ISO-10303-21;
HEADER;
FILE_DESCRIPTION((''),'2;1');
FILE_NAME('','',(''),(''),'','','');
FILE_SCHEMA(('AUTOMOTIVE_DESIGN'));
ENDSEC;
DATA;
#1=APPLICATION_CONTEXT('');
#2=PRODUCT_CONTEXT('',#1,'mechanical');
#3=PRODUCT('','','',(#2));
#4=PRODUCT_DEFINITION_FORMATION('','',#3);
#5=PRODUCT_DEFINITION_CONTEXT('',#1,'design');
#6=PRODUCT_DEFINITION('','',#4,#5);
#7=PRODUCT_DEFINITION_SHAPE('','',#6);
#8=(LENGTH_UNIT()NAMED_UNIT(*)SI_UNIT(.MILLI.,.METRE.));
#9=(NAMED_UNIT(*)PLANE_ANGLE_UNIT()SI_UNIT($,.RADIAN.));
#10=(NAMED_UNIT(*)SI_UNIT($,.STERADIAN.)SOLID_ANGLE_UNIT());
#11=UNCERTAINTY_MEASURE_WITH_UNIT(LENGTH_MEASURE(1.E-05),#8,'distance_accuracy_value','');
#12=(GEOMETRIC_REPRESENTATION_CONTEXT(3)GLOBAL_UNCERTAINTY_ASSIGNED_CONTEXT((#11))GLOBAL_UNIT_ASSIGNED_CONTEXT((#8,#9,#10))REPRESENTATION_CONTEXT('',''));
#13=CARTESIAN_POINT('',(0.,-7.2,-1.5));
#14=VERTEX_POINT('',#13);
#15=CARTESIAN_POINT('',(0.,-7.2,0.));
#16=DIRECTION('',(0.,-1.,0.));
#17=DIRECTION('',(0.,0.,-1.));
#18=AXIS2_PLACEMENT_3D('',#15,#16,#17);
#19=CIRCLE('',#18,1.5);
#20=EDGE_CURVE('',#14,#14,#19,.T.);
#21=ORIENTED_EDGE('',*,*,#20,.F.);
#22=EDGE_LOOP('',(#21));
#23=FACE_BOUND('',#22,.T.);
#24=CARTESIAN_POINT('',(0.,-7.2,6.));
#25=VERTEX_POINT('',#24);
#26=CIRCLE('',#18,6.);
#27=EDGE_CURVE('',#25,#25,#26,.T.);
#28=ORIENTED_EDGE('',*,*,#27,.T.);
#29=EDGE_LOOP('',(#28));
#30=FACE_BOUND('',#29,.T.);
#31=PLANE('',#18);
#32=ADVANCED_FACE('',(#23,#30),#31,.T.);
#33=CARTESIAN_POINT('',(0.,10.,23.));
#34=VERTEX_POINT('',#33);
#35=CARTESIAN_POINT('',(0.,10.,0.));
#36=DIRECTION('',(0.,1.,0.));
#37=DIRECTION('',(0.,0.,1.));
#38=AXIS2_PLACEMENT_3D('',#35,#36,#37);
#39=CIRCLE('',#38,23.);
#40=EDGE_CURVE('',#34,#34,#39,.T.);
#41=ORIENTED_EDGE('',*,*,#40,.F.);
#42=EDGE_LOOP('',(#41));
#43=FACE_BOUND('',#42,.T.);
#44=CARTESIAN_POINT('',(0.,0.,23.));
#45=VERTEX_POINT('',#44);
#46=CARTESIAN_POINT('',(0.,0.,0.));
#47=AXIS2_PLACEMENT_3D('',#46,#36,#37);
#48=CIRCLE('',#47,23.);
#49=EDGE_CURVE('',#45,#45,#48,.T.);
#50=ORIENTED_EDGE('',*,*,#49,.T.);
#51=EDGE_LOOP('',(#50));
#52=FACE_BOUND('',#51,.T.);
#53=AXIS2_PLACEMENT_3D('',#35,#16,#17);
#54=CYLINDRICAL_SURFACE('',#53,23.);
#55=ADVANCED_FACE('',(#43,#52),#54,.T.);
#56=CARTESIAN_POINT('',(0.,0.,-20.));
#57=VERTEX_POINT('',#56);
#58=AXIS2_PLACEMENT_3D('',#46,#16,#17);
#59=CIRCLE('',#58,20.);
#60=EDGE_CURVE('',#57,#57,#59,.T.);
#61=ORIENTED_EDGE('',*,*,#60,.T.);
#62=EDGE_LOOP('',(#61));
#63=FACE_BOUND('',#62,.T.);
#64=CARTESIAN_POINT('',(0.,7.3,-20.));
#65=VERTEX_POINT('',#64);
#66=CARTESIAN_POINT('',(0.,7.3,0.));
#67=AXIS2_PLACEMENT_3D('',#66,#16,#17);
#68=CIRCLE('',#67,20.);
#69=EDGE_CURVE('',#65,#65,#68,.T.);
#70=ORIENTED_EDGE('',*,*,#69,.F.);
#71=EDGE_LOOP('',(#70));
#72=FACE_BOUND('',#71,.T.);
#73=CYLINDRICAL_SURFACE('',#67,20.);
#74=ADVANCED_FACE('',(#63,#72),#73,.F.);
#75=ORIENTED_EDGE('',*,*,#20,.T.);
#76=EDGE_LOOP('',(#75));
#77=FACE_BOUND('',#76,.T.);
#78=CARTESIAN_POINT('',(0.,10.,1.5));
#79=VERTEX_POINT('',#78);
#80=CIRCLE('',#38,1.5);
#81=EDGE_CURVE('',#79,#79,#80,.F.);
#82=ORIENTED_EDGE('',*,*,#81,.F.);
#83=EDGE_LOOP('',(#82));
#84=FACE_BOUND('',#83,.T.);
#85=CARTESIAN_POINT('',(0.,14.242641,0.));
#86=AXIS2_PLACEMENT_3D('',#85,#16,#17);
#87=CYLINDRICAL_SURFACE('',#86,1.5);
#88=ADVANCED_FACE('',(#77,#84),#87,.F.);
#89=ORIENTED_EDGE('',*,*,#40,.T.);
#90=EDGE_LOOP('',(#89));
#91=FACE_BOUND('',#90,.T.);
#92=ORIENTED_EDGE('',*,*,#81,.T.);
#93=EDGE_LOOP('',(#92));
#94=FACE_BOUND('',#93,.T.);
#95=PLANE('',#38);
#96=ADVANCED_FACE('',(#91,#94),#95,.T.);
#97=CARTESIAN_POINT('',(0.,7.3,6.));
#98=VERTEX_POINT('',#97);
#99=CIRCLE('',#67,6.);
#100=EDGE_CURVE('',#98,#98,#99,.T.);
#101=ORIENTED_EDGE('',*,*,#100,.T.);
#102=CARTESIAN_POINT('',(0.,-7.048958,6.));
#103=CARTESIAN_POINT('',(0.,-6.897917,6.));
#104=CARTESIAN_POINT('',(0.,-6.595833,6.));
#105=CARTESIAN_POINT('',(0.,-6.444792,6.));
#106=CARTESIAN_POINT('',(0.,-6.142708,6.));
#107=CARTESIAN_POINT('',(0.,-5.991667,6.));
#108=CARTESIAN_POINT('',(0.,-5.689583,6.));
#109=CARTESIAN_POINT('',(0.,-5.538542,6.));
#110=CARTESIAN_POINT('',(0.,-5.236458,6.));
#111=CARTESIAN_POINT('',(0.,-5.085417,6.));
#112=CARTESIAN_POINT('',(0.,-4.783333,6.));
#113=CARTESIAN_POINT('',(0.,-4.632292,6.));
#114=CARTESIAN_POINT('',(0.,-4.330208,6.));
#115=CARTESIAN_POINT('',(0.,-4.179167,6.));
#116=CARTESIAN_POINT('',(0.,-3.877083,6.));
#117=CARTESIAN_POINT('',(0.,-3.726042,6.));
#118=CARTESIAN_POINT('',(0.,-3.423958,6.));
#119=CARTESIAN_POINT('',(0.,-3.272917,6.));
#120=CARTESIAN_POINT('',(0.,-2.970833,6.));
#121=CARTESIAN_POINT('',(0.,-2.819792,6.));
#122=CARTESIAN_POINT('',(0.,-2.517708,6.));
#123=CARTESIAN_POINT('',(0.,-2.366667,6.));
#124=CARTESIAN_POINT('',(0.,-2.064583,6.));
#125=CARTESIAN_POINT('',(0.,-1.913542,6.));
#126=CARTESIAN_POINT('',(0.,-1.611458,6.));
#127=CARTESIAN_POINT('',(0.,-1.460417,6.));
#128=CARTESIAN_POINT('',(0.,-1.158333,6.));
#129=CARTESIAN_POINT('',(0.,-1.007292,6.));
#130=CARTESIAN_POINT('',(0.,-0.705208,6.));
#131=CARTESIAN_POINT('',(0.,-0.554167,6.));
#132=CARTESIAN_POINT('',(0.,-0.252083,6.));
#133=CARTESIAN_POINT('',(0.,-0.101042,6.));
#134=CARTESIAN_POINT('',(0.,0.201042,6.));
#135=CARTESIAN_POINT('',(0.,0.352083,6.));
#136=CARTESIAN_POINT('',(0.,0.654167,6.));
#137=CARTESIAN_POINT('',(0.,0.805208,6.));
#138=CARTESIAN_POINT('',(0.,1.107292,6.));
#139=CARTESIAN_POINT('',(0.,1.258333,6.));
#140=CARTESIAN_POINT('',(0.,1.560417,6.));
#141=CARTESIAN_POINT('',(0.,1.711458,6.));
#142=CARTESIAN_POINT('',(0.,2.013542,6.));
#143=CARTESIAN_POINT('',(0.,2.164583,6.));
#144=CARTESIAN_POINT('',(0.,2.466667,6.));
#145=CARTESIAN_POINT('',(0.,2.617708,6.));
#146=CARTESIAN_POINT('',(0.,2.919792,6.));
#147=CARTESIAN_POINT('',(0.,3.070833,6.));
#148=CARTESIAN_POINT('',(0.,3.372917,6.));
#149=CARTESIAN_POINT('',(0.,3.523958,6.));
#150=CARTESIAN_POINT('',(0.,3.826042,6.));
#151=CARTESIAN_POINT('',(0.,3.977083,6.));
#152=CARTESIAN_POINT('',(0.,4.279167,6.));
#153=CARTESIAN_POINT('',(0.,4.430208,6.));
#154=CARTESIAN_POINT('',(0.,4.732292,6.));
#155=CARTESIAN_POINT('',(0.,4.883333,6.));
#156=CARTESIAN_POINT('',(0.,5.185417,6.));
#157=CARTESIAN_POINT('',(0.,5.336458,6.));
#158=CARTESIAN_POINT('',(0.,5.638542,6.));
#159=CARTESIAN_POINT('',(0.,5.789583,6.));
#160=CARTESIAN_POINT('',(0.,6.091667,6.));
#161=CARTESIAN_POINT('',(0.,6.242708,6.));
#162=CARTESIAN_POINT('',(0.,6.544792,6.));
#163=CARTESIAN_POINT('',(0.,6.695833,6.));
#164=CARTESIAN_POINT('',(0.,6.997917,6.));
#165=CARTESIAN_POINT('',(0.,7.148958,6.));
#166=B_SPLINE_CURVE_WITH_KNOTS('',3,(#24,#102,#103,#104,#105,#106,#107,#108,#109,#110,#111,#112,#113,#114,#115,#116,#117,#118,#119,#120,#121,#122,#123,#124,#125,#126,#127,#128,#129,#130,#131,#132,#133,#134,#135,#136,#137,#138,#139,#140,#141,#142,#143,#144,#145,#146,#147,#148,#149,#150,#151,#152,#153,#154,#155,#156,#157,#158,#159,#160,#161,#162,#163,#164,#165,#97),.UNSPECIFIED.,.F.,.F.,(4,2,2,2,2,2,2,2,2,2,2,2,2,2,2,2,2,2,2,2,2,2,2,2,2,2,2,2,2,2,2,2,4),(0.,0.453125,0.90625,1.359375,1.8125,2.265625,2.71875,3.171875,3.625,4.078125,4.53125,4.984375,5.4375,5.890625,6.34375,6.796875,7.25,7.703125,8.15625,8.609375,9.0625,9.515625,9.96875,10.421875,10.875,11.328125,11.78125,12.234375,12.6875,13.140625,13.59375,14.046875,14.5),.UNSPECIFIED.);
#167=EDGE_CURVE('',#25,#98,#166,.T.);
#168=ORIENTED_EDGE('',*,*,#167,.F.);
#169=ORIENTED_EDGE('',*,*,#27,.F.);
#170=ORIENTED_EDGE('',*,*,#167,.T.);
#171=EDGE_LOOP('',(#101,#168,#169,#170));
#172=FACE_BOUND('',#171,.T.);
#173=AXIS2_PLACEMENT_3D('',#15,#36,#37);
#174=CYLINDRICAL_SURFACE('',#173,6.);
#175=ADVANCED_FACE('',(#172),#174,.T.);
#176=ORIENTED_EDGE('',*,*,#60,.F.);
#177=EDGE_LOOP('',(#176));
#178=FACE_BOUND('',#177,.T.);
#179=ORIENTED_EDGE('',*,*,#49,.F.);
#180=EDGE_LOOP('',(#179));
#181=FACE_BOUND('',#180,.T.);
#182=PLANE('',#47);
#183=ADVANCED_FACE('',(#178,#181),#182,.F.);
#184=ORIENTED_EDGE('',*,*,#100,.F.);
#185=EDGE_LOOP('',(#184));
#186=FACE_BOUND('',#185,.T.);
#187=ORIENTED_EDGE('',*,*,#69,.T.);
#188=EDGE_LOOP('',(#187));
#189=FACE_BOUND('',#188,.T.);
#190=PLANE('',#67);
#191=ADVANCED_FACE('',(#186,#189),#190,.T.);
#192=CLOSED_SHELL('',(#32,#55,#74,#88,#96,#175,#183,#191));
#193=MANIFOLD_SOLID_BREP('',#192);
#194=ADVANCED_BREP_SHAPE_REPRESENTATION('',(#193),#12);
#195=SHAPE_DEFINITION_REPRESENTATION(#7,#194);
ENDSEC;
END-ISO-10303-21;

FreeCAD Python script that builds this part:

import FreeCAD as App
import Part
import Sketcher

V = App.Vector
Q = App.Units.Quantity

doc = App.newDocument("Part")
body = doc.addObject("PartDesign::Body", "Body")

# Sketch on XZ plane
sketch1 = doc.addObject("Sketcher::SketchObject", "Sketch")
body.addObject(sketch1)
sketch1.AttachmentSupport = (doc.XZ_Plane, [""])
sketch1.MapMode = "FlatFace"
sketch1.addGeometry(Part.Circle(V(0, 0, 0), V(0, 0, 1), 23), False)
sketch1.addConstraint([
    Sketcher.Constraint("Coincident", 0, 3, -1, 1),
    Sketcher.Constraint("Diameter", 0, Q("46 mm")),
])
pad1 = doc.addObject("PartDesign::Pad", "Pad")
body.addObject(pad1)
pad1.Profile = sketch1
pad1.Length = 10
pad1.Reversed = True

# Sketch on XZ plane
sketch2 = doc.addObject("Sketcher::SketchObject", "Sketch001")
body.addObject(sketch2)
sketch2.AttachmentSupport = (doc.XZ_Plane, [""])
sketch2.MapMode = "FlatFace"
sketch2.addGeometry(Part.Circle(V(0, 0, 0), V(0, 0, 1), 20), False)
sketch2.addConstraint([
    Sketcher.Constraint("Coincident", 0, 3, -1, 1),
    Sketcher.Constraint("Diameter", 0, Q("40 mm")),
])
pocket1 = doc.addObject("PartDesign::Pocket", "Pocket")
body.addObject(pocket1)
pocket1.Profile = sketch2
pocket1.Length = 7.3

# Sketch on XZ plane
sketch3 = doc.addObject("Sketcher::SketchObject", "Sketch002")
body.addObject(sketch3)
sketch3.AttachmentSupport = (doc.XZ_Plane, [""])
sketch3.MapMode = "FlatFace"
sketch3.AttachmentOffset = App.Placement(V(0, 0, -7.3), App.Rotation())
sketch3.addGeometry(Part.Circle(V(0, 0, 0), V(0, 0, 1), 6), False)
sketch3.addConstraint([
    Sketcher.Constraint("Coincident", 0, 3, -1, 1),
    Sketcher.Constraint("Diameter", 0, Q("12 mm")),
])
pad2 = doc.addObject("PartDesign::Pad", "Pad001")
body.addObject(pad2)
pad2.Profile = sketch3
pad2.Length = 14.5

# Sketch on XZ plane
sketch4 = doc.addObject("Sketcher::SketchObject", "Sketch003")
body.addObject(sketch4)
sketch4.AttachmentSupport = (doc.XZ_Plane, [""])
sketch4.MapMode = "FlatFace"
sketch4.AttachmentOffset = App.Placement(V(0, 0, 7.2), App.Rotation())
sketch4.addGeometry(Part.Circle(V(0, 0, 0), V(0, 0, 1), 1.5), False)
sketch4.addConstraint([
    Sketcher.Constraint("Coincident", 0, 3, -1, 1),
    Sketcher.Constraint("Diameter", 0, Q("3 mm")),
])
pocket2 = doc.addObject("PartDesign::Pocket", "Pocket001")
body.addObject(pocket2)
pocket2.Profile = sketch4
pocket2.Length = 17.2

doc.recompute()
